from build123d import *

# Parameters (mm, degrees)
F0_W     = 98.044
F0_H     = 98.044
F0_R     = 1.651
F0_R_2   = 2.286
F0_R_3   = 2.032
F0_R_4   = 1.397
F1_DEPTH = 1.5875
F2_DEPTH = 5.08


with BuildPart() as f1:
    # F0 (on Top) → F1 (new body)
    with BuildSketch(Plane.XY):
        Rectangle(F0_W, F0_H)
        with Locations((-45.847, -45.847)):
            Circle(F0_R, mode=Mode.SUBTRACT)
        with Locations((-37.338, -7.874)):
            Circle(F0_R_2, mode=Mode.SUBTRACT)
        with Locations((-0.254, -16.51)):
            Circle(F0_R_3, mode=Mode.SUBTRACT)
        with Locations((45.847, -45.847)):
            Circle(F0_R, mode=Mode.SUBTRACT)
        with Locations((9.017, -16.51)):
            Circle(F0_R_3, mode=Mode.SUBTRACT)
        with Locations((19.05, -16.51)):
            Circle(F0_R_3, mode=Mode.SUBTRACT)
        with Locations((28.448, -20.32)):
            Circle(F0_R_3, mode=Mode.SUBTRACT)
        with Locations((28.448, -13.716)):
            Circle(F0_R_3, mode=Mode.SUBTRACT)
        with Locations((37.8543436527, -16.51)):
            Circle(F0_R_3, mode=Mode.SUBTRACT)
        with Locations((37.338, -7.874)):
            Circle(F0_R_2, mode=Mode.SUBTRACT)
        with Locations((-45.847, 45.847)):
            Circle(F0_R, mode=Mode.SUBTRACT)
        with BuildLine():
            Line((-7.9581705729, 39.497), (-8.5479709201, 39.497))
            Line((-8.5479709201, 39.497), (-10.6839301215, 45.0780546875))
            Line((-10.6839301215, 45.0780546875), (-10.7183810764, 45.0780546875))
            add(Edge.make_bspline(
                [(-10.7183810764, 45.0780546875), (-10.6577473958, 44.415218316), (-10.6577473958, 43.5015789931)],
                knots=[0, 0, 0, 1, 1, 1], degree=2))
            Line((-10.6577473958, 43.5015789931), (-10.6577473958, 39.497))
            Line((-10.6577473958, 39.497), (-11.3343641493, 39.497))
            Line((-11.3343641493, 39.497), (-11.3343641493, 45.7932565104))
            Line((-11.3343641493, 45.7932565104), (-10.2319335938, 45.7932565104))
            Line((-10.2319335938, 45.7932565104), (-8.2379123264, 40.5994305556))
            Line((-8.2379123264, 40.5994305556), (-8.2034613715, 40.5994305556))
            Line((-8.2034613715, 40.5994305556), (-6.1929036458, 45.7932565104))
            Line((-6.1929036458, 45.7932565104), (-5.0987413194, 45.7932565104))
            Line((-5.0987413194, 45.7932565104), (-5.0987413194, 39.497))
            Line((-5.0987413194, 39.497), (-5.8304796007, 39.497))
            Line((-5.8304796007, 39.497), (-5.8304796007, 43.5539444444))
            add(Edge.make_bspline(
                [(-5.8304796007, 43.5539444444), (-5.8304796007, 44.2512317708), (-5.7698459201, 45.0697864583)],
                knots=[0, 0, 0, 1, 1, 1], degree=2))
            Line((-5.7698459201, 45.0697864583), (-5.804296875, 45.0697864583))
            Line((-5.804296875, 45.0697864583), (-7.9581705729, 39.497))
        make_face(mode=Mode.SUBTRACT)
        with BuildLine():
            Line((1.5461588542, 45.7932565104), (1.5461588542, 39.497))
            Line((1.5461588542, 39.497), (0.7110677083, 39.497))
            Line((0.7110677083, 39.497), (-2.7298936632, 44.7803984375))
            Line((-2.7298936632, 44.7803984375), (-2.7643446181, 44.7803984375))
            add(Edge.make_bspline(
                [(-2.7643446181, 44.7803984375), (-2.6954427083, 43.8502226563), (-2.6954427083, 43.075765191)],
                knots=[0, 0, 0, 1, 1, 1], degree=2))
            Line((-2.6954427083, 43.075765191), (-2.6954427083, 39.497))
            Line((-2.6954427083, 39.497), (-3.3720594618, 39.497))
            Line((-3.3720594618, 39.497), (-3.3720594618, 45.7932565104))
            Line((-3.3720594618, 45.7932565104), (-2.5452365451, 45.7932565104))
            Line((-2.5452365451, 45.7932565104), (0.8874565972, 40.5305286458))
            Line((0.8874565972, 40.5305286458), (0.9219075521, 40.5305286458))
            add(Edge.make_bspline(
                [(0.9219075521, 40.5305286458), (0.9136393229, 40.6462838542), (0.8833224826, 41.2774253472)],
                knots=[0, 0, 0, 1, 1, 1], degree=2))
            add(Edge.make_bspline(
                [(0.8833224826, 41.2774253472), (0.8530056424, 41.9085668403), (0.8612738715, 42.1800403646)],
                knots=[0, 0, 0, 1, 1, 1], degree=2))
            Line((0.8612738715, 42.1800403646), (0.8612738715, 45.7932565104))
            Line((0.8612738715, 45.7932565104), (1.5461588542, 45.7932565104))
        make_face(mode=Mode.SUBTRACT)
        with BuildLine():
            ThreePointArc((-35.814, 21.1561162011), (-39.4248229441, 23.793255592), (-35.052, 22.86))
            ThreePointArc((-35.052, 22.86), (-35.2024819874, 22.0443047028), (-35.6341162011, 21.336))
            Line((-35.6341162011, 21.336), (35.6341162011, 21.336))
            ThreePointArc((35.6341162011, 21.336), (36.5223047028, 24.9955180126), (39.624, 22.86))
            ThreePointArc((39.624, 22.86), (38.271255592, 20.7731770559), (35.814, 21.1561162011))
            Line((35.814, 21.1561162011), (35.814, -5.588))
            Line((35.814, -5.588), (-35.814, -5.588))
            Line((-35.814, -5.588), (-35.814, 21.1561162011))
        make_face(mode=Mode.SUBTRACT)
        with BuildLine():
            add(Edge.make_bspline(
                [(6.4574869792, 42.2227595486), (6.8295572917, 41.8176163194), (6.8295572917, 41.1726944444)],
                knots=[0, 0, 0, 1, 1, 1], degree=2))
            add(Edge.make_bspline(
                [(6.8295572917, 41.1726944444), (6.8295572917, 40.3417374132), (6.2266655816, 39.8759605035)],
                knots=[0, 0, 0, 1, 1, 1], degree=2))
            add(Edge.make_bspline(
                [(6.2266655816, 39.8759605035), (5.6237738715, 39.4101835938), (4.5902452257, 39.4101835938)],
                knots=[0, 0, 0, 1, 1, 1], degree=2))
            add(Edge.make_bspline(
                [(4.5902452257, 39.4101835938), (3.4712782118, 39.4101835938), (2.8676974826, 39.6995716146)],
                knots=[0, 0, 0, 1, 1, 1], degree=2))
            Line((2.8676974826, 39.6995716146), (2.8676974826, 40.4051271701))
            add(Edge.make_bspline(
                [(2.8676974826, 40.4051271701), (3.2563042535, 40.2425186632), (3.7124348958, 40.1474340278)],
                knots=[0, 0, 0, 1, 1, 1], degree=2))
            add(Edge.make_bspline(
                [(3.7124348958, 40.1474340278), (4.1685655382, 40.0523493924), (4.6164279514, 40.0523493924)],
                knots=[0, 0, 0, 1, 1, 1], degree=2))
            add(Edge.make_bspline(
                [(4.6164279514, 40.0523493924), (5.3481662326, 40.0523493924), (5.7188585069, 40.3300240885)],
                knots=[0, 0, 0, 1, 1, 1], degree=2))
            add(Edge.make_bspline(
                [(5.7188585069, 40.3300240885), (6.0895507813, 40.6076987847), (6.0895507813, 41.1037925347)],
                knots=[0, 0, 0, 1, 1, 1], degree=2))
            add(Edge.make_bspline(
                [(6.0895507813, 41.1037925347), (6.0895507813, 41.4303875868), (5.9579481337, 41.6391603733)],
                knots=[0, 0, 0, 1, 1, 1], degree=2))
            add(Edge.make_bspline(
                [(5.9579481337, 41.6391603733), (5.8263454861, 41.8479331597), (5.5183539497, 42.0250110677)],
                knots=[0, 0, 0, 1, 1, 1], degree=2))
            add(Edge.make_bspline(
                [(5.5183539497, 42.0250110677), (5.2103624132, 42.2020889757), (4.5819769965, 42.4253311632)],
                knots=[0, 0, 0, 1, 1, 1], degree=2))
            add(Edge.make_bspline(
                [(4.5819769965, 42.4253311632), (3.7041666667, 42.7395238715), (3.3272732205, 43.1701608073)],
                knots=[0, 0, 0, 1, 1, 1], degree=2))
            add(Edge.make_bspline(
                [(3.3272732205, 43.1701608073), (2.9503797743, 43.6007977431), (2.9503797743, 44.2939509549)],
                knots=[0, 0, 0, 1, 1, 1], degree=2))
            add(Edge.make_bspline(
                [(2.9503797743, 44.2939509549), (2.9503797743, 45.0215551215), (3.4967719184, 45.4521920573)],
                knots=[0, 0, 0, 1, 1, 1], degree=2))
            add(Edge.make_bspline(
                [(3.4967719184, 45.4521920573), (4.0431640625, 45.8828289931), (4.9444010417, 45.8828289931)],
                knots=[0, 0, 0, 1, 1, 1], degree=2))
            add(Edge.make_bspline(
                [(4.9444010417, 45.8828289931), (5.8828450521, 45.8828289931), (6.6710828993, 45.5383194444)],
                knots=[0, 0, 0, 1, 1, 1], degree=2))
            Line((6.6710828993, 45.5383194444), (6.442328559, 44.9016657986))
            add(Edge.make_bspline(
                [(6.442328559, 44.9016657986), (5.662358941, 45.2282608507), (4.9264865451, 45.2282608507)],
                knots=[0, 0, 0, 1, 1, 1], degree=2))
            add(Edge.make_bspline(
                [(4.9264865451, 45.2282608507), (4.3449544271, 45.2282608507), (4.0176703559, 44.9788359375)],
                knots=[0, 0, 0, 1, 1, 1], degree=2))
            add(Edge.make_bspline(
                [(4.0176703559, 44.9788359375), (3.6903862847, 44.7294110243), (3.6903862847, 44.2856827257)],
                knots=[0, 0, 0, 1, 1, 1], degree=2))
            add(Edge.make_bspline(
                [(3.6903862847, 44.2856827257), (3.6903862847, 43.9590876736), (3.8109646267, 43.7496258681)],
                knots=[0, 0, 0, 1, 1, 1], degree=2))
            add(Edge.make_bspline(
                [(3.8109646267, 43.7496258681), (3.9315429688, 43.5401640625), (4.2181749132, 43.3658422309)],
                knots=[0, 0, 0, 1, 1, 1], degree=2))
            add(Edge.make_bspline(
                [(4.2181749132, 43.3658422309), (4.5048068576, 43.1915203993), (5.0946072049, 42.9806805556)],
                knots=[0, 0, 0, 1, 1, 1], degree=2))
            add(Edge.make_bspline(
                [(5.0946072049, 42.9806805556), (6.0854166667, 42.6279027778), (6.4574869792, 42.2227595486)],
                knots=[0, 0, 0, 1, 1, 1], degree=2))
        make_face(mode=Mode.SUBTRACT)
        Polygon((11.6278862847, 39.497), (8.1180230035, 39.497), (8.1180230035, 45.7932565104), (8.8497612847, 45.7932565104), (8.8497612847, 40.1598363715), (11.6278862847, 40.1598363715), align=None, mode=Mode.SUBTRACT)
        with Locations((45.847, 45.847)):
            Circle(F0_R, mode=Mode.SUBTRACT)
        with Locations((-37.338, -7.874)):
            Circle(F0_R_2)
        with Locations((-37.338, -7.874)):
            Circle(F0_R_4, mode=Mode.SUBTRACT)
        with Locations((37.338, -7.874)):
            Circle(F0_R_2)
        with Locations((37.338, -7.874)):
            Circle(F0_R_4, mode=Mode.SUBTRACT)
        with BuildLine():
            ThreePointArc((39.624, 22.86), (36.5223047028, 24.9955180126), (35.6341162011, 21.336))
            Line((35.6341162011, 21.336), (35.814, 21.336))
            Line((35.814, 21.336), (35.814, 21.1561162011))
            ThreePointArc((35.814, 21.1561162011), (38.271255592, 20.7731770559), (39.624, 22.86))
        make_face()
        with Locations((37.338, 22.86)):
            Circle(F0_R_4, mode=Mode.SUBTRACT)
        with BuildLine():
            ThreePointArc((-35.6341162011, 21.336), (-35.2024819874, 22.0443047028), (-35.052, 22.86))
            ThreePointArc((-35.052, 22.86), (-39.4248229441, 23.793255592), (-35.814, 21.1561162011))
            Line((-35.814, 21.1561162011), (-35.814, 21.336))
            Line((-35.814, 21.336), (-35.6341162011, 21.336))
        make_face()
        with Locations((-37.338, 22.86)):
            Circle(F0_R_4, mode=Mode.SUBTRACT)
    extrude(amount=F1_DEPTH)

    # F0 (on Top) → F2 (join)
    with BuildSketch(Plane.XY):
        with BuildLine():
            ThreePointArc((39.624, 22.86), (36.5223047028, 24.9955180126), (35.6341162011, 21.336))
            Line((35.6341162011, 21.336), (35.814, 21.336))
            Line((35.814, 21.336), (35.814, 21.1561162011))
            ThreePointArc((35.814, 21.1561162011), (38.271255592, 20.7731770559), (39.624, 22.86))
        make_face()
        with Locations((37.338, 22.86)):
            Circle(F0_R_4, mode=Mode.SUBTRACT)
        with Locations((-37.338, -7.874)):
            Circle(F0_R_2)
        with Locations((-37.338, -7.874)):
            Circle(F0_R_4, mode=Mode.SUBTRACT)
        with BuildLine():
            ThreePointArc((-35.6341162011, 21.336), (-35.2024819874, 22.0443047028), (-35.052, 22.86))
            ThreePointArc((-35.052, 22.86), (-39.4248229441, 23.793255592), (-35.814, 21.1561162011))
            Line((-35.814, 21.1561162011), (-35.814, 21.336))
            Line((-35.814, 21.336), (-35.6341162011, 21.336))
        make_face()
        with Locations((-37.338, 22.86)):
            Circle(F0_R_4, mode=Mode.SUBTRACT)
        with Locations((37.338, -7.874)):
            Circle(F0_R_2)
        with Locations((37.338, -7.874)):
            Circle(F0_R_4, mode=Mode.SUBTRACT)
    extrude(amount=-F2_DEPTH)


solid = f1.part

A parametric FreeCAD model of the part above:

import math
import FreeCAD as App
import Part
import Sketcher

V = App.Vector
Q = App.Units.Quantity


def add_polygon(sketch, points):
    """Adds a closed chain of lines whose ends are joined by coincident constraints."""
    first, n = sketch.GeometryCount, len(points)
    for a, b in zip(points, points[1:] + points[:1]):
        sketch.addGeometry(Part.LineSegment(App.Vector(*a, 0), App.Vector(*b, 0)), False)
    for i in range(n):
        sketch.addConstraint(Sketcher.Constraint("Coincident", first + i, 2, first + (i + 1) % n, 1))

doc = App.newDocument("Part")
params = doc.addObject("Spreadsheet::Sheet", "Params")
for row, (alias, value) in enumerate([
    ("sketch1_diameter", "0.13 in"),
    ("sketch1_diameter2", "0.11 in"),
    ("sketch1_diameter3", "0.16 in"),
    ("sketch1_width", "3.86 in"),
    ("sketch1_width2", "2.82 in"),
    ("pad1_length", "0.0625 in"),
    ("sketch2_diameter", "0.11 in"),
    ("sketch2_diameter2", "0.18 in"),
    ("pad2_length", "0.2 in"),
], start=1):
    params.set(f"A{row}", alias)
    params.set(f"B{row}", "=" + value)
    params.setAlias(f"B{row}", alias)

body = doc.addObject("PartDesign::Body", "Body")

# Sketch on XY plane
sketch1 = doc.addObject("Sketcher::SketchObject", "Sketch")
body.addObject(sketch1)
sketch1.AttachmentSupport = (doc.XY_Plane, [""])
sketch1.MapMode = "FlatFace"
add_polygon(sketch1, [(-49.022, 49.022), (-49.022, -49.022), (49.022, -49.022), (49.022, 49.022)])  # lines 0-3
sketch1.addGeometry(Part.Circle(V(-45.847, -45.847, 0), V(0, 0, 1), 1.651), False)  # 4
sketch1.addGeometry(Part.Circle(V(-37.338, -7.874, 0), V(0, 0, 1), 1.397), False)  # 5
sketch1.addGeometry(Part.Circle(V(-0.254, -16.51, 0), V(0, 0, 1), 2.032), False)  # 6
sketch1.addGeometry(Part.Circle(V(45.847, -45.847, 0), V(0, 0, 1), 1.651), False)  # 7
sketch1.addGeometry(Part.Circle(V(9.017, -16.51, 0), V(0, 0, 1), 2.032), False)  # 8
sketch1.addGeometry(Part.Circle(V(19.05, -16.51, 0), V(0, 0, 1), 2.032), False)  # 9
sketch1.addGeometry(Part.Circle(V(28.448, -20.32, 0), V(0, 0, 1), 2.032), False)  # 10
sketch1.addGeometry(Part.Circle(V(28.448, -13.716, 0), V(0, 0, 1), 2.032), False)  # 11
sketch1.addGeometry(Part.Circle(V(37.854344, -16.51, 0), V(0, 0, 1), 2.032), False)  # 12
sketch1.addGeometry(Part.Circle(V(37.338, -7.874, 0), V(0, 0, 1), 1.397), False)  # 13
sketch1.addGeometry(Part.Circle(V(-37.338, 22.86, 0), V(0, 0, 1), 1.397), False)  # 14
sketch1.addGeometry(Part.Circle(V(-45.847, 45.847, 0), V(0, 0, 1), 1.651), False)  # 15
sketch1.addGeometry(Part.LineSegment(V(-5.804297, 45.069786, 0), V(-7.958171, 39.497, 0)), False)  # 16
sketch1.addGeometry(Part.LineSegment(V(-7.958171, 39.497, 0), V(-8.547971, 39.497, 0)), False)  # 17
sketch1.addGeometry(Part.LineSegment(V(-8.547971, 39.497, 0), V(-10.68393, 45.078055, 0)), False)  # 18
sketch1.addGeometry(Part.LineSegment(V(-10.68393, 45.078055, 0), V(-10.718381, 45.078055, 0)), False)  # 19
sketch1.addGeometry(Part.BSplineCurve([V(-10.718381, 45.078055, 0), V(-10.657747, 44.415218, 0), V(-10.657747, 43.501579, 0)], [3, 3], [0, 1], False, 2, [1, 1, 1], False), False)  # 20
sketch1.addGeometry(Part.LineSegment(V(-10.657747, 43.501579, 0), V(-10.657747, 39.497, 0)), False)  # 21
sketch1.addGeometry(Part.LineSegment(V(-10.657747, 39.497, 0), V(-11.334364, 39.497, 0)), False)  # 22
sketch1.addGeometry(Part.LineSegment(V(-11.334364, 39.497, 0), V(-11.334364, 45.793257, 0)), False)  # 23
sketch1.addGeometry(Part.LineSegment(V(-11.334364, 45.793257, 0), V(-10.231934, 45.793257, 0)), False)  # 24
sketch1.addGeometry(Part.LineSegment(V(-10.231934, 45.793257, 0), V(-8.237912, 40.599431, 0)), False)  # 25
sketch1.addGeometry(Part.LineSegment(V(-8.237912, 40.599431, 0), V(-8.203461, 40.599431, 0)), False)  # 26
sketch1.addGeometry(Part.LineSegment(V(-8.203461, 40.599431, 0), V(-6.192904, 45.793257, 0)), False)  # 27
sketch1.addGeometry(Part.LineSegment(V(-6.192904, 45.793257, 0), V(-5.098741, 45.793257, 0)), False)  # 28
sketch1.addGeometry(Part.LineSegment(V(-5.098741, 45.793257, 0), V(-5.098741, 39.497, 0)), False)  # 29
sketch1.addGeometry(Part.LineSegment(V(-5.098741, 39.497, 0), V(-5.83048, 39.497, 0)), False)  # 30
sketch1.addGeometry(Part.LineSegment(V(-5.83048, 39.497, 0), V(-5.83048, 43.553944, 0)), False)  # 31
sketch1.addGeometry(Part.BSplineCurve([V(-5.83048, 43.553944, 0), V(-5.83048, 44.251232, 0), V(-5.769846, 45.069786, 0)], [3, 3], [0, 1], False, 2, [1, 1, 1], False), False)  # 32
sketch1.addGeometry(Part.LineSegment(V(-5.769846, 45.069786, 0), V(-5.804297, 45.069786, 0)), False)  # 33
sketch1.addGeometry(Part.LineSegment(V(0.861274, 45.793257, 0), V(1.546159, 45.793257, 0)), False)  # 34
sketch1.addGeometry(Part.LineSegment(V(1.546159, 45.793257, 0), V(1.546159, 39.497, 0)), False)  # 35
sketch1.addGeometry(Part.LineSegment(V(1.546159, 39.497, 0), V(0.711068, 39.497, 0)), False)  # 36
sketch1.addGeometry(Part.LineSegment(V(0.711068, 39.497, 0), V(-2.729894, 44.780398, 0)), False)  # 37
sketch1.addGeometry(Part.LineSegment(V(-2.729894, 44.780398, 0), V(-2.764345, 44.780398, 0)), False)  # 38
sketch1.addGeometry(Part.BSplineCurve([V(-2.764345, 44.780398, 0), V(-2.695443, 43.850223, 0), V(-2.695443, 43.075765, 0)], [3, 3], [0, 1], False, 2, [1, 1, 1], False), False)  # 39
sketch1.addGeometry(Part.LineSegment(V(-2.695443, 43.075765, 0), V(-2.695443, 39.497, 0)), False)  # 40
sketch1.addGeometry(Part.LineSegment(V(-2.695443, 39.497, 0), V(-3.372059, 39.497, 0)), False)  # 41
sketch1.addGeometry(Part.LineSegment(V(-3.372059, 39.497, 0), V(-3.372059, 45.793257, 0)), False)  # 42
sketch1.addGeometry(Part.LineSegment(V(-3.372059, 45.793257, 0), V(-2.545237, 45.793257, 0)), False)  # 43
sketch1.addGeometry(Part.LineSegment(V(-2.545237, 45.793257, 0), V(0.887457, 40.530529, 0)), False)  # 44
sketch1.addGeometry(Part.LineSegment(V(0.887457, 40.530529, 0), V(0.921908, 40.530529, 0)), False)  # 45
sketch1.addGeometry(Part.BSplineCurve([V(0.921908, 40.530529, 0), V(0.913639, 40.646284, 0), V(0.883322, 41.277425, 0)], [3, 3], [0, 1], False, 2, [1, 1, 1], False), False)  # 46
sketch1.addGeometry(Part.BSplineCurve([V(0.883322, 41.277425, 0), V(0.853006, 41.908567, 0), V(0.861274, 42.18004, 0)], [3, 3], [0, 1], False, 2, [1, 1, 1], False), False)  # 47
sketch1.addGeometry(Part.LineSegment(V(0.861274, 42.18004, 0), V(0.861274, 45.793257, 0)), False)  # 48
add_polygon(sketch1, [(-35.814, -5.588), (-35.814, 21.336), (35.814, 21.336), (35.814, -5.588)])  # lines 49-52
sketch1.addGeometry(Part.Circle(V(37.338, 22.86, 0), V(0, 0, 1), 1.397), False)  # 53
sketch1.addGeometry(Part.BSplineCurve([V(5.094607, 42.980681, 0), V(6.085417, 42.627903, 0), V(6.829557, 41.817616, 0), V(6.829557, 40.341737, 0), V(5.623774, 39.410184, 0), V(3.471278, 39.410184, 0), V(2.867697, 39.699572, 0)], [3, 1, 1, 1, 1, 3], [0, 1, 2, 3.288461538, 4.576923077, 5.971897436], False, 2, [1, 1, 1, 1, 1, 1, 1], False), False)  # 54
sketch1.addGeometry(Part.LineSegment(V(2.867697, 39.699572, 0), V(2.867697, 40.405127, 0)), False)  # 55
sketch1.addGeometry(Part.BSplineCurve([V(2.867697, 40.405127, 0), V(3.256304, 40.242519, 0), V(3.712435, 40.147434, 0)], [3, 3], [0, 1], False, 2, [1, 1, 1], False), False)  # 56
sketch1.addGeometry(Part.BSplineCurve([V(3.712435, 40.147434, 0), V(4.168566, 40.052349, 0), V(5.348166, 40.052349, 0), V(5.718859, 40.330024, 0)], [3, 1, 3], [0, 1, 2.633846154], False, 2, [1, 1, 1, 1], False), False)  # 57
sketch1.addGeometry(Part.BSplineCurve([V(5.718859, 40.330024, 0), V(6.089551, 40.607699, 0), V(6.089551, 41.430388, 0), V(5.957948, 41.63916, 0)], [3, 1, 3], [0, 1, 1.658333333], False, 2, [1, 1, 1, 1], False), False)  # 58
sketch1.addGeometry(Part.BSplineCurve([V(5.957948, 41.63916, 0), V(5.826345, 41.847933, 0), V(5.518354, 42.025011, 0)], [3, 3], [0, 1], False, 2, [1, 1, 1], False), False)  # 59
sketch1.addGeometry(Part.BSplineCurve([V(5.518354, 42.025011, 0), V(5.210362, 42.202089, 0), V(4.581977, 42.425331, 0)], [3, 3], [0, 1], False, 2, [1, 1, 1], False), False)  # 60
sketch1.addGeometry(Part.BSplineCurve([V(4.581977, 42.425331, 0), V(3.704167, 42.739524, 0), V(2.95038, 43.600798, 0), V(2.95038, 45.021555, 0), V(4.043164, 45.882829, 0), V(5.882845, 45.882829, 0), V(6.671083, 45.538319, 0)], [3, 1, 1, 1, 1, 3], [0, 1, 2, 3.049701789, 4.099403578, 5.19244168], False, 2, [1, 1, 1, 1, 1, 1, 1], False), False)  # 61
sketch1.addGeometry(Part.LineSegment(V(6.671083, 45.538319, 0), V(6.442329, 44.901666, 0)), False)  # 62
sketch1.addGeometry(Part.BSplineCurve([V(6.442329, 44.901666, 0), V(5.662359, 45.228261, 0), V(4.344954, 45.228261, 0), V(3.690386, 44.729411, 0), V(3.690386, 43.959088, 0), V(3.810965, 43.749626, 0)], [3, 1, 1, 1, 3], [0, 1, 1.790262172, 2.580524344, 3.162176937], False, 2, [1, 1, 1, 1, 1, 1], False), False)  # 63
sketch1.addGeometry(Part.BSplineCurve([V(3.810965, 43.749626, 0), V(3.931543, 43.540164, 0), V(4.504807, 43.19152, 0), V(5.094607, 42.980681, 0)], [3, 1, 3], [0, 1, 2], False, 2, [1, 1, 1, 1], False), False)  # 64
add_polygon(sketch1, [(11.627886, 40.159836), (11.627886, 39.497), (8.118023, 39.497), (8.118023, 45.793257), (8.849761, 45.793257), (8.849761, 40.159836)])  # lines 65-70
sketch1.addGeometry(Part.Circle(V(45.847, 45.847, 0), V(0, 0, 1), 1.651), False)  # 71
sketch1.addConstraint(Sketcher.Constraint("Block", 20))
sketch1.addConstraint(Sketcher.Constraint("Block", 32))
sketch1.addConstraint(Sketcher.Constraint("Block", 39))
sketch1.addConstraint(Sketcher.Constraint("Block", 46))
sketch1.addConstraint(Sketcher.Constraint("Block", 47))
sketch1.addConstraint(Sketcher.Constraint("Block", 54))
sketch1.addConstraint(Sketcher.Constraint("Block", 56))
sketch1.addConstraint(Sketcher.Constraint("Block", 57))
sketch1.addConstraint(Sketcher.Constraint("Block", 58))
sketch1.addConstraint(Sketcher.Constraint("Block", 59))
sketch1.addConstraint(Sketcher.Constraint("Block", 60))
sketch1.addConstraint(Sketcher.Constraint("Block", 61))
sketch1.addConstraint(Sketcher.Constraint("Block", 63))
sketch1.addConstraint(Sketcher.Constraint("Block", 64))
sketch1.addConstraint(Sketcher.Constraint("Coincident", 16, 2, 17, 1))
sketch1.addConstraint(Sketcher.Constraint("Coincident", 17, 2, 18, 1))
sketch1.addConstraint(Sketcher.Constraint("Coincident", 18, 2, 19, 1))
sketch1.addConstraint(Sketcher.Constraint("Coincident", 19, 2, 20, 1))
sketch1.addConstraint(Sketcher.Constraint("Coincident", 20, 2, 21, 1))
sketch1.addConstraint(Sketcher.Constraint("Coincident", 21, 2, 22, 1))
sketch1.addConstraint(Sketcher.Constraint("Coincident", 22, 2, 23, 1))
sketch1.addConstraint(Sketcher.Constraint("Coincident", 23, 2, 24, 1))
sketch1.addConstraint(Sketcher.Constraint("Coincident", 24, 2, 25, 1))
sketch1.addConstraint(Sketcher.Constraint("Coincident", 25, 2, 26, 1))
sketch1.addConstraint(Sketcher.Constraint("Coincident", 26, 2, 27, 1))
sketch1.addConstraint(Sketcher.Constraint("Coincident", 27, 2, 28, 1))
sketch1.addConstraint(Sketcher.Constraint("Coincident", 28, 2, 29, 1))
sketch1.addConstraint(Sketcher.Constraint("Coincident", 29, 2, 30, 1))
sketch1.addConstraint(Sketcher.Constraint("Coincident", 30, 2, 31, 1))
sketch1.addConstraint(Sketcher.Constraint("Coincident", 31, 2, 32, 1))
sketch1.addConstraint(Sketcher.Constraint("Coincident", 32, 2, 33, 1))
sketch1.addConstraint(Sketcher.Constraint("Coincident", 33, 2, 16, 1))
sketch1.addConstraint(Sketcher.Constraint("Coincident", 34, 2, 35, 1))
sketch1.addConstraint(Sketcher.Constraint("Coincident", 35, 2, 36, 1))
sketch1.addConstraint(Sketcher.Constraint("Coincident", 36, 2, 37, 1))
sketch1.addConstraint(Sketcher.Constraint("Coincident", 37, 2, 38, 1))
sketch1.addConstraint(Sketcher.Constraint("Coincident", 38, 2, 39, 1))
sketch1.addConstraint(Sketcher.Constraint("Coincident", 39, 2, 40, 1))
sketch1.addConstraint(Sketcher.Constraint("Coincident", 40, 2, 41, 1))
sketch1.addConstraint(Sketcher.Constraint("Coincident", 41, 2, 42, 1))
sketch1.addConstraint(Sketcher.Constraint("Coincident", 42, 2, 43, 1))
sketch1.addConstraint(Sketcher.Constraint("Coincident", 43, 2, 44, 1))
sketch1.addConstraint(Sketcher.Constraint("Coincident", 44, 2, 45, 1))
sketch1.addConstraint(Sketcher.Constraint("Coincident", 45, 2, 46, 1))
sketch1.addConstraint(Sketcher.Constraint("Coincident", 47, 2, 48, 1))
sketch1.addConstraint(Sketcher.Constraint("Coincident", 48, 2, 34, 1))
sketch1.addConstraint(Sketcher.Constraint("Coincident", 54, 2, 55, 1))
sketch1.addConstraint(Sketcher.Constraint("Coincident", 55, 2, 56, 1))
sketch1.addConstraint(Sketcher.Constraint("Coincident", 61, 2, 62, 1))
sketch1.addConstraint(Sketcher.Constraint("Coincident", 62, 2, 63, 1))
sketch1.addConstraint(Sketcher.Constraint("Vertical", 0))
sketch1.addConstraint(Sketcher.Constraint("Horizontal", 1))
sketch1.addConstraint(Sketcher.Constraint("Vertical", 2))
sketch1.addConstraint(Sketcher.Constraint("Horizontal", 3))
sketch1.addConstraint(Sketcher.Constraint("Horizontal", 17))
sketch1.addConstraint(Sketcher.Constraint("Horizontal", 19))
sketch1.addConstraint(Sketcher.Constraint("Vertical", 21))
sketch1.addConstraint(Sketcher.Constraint("Horizontal", 22))
sketch1.addConstraint(Sketcher.Constraint("Vertical", 23))
sketch1.addConstraint(Sketcher.Constraint("Horizontal", 24))
sketch1.addConstraint(Sketcher.Constraint("Horizontal", 26))
sketch1.addConstraint(Sketcher.Constraint("Horizontal", 28))
sketch1.addConstraint(Sketcher.Constraint("Vertical", 29))
sketch1.addConstraint(Sketcher.Constraint("Horizontal", 30))
sketch1.addConstraint(Sketcher.Constraint("Vertical", 31))
sketch1.addConstraint(Sketcher.Constraint("Horizontal", 33))
sketch1.addConstraint(Sketcher.Constraint("Horizontal", 34))
sketch1.addConstraint(Sketcher.Constraint("Vertical", 35))
sketch1.addConstraint(Sketcher.Constraint("Horizontal", 36))
sketch1.addConstraint(Sketcher.Constraint("Horizontal", 38))
sketch1.addConstraint(Sketcher.Constraint("Vertical", 40))
sketch1.addConstraint(Sketcher.Constraint("Horizontal", 41))
sketch1.addConstraint(Sketcher.Constraint("Vertical", 42))
sketch1.addConstraint(Sketcher.Constraint("Horizontal", 43))
sketch1.addConstraint(Sketcher.Constraint("Horizontal", 45))
sketch1.addConstraint(Sketcher.Constraint("Vertical", 48))
sketch1.addConstraint(Sketcher.Constraint("Vertical", 49))
sketch1.addConstraint(Sketcher.Constraint("Horizontal", 50))
sketch1.addConstraint(Sketcher.Constraint("Vertical", 51))
sketch1.addConstraint(Sketcher.Constraint("Horizontal", 52))
sketch1.addConstraint(Sketcher.Constraint("Vertical", 65))
sketch1.addConstraint(Sketcher.Constraint("Horizontal", 66))
sketch1.addConstraint(Sketcher.Constraint("Vertical", 67))
sketch1.addConstraint(Sketcher.Constraint("Horizontal", 68))
sketch1.addConstraint(Sketcher.Constraint("Vertical", 69))
sketch1.addConstraint(Sketcher.Constraint("Horizontal", 70))
sketch1.addConstraint(Sketcher.Constraint("Equal", 4, 7))
sketch1.addConstraint(Sketcher.Constraint("Equal", 6, 8))
sketch1.addConstraint(Sketcher.Constraint("Equal", 8, 9))
sketch1.addConstraint(Sketcher.Constraint("Equal", 9, 10))
sketch1.addConstraint(Sketcher.Constraint("Equal", 10, 11))
sketch1.addConstraint(Sketcher.Constraint("Equal", 11, 12))
sketch1.addConstraint(Sketcher.Constraint("Equal", 5, 13))
sketch1.addConstraint(Sketcher.Constraint("Equal", 13, 14))
sketch1.addConstraint(Sketcher.Constraint("Equal", 7, 15))
sketch1.addConstraint(Sketcher.Constraint("Equal", 14, 53))
sketch1.addConstraint(Sketcher.Constraint("Equal", 15, 71))
sketch1.addConstraint(Sketcher.Constraint("Symmetric", 7, 3, 15, 3, -1, 1))
sketch1.addConstraint(Sketcher.Constraint("Symmetric", 4, 3, 71, 3, -1, 1))
sketch1.addConstraint(Sketcher.Constraint("Symmetric", 0, 2, 2, 2, -1, 1))
sketch1.addConstraint(Sketcher.Constraint("Symmetric", 4, 3, 7, 3, -2))
sketch1.addConstraint(Sketcher.Constraint("Symmetric", 5, 3, 13, 3, -2))
sketch1.addConstraint(Sketcher.Constraint("Symmetric", 14, 3, 53, 3, -2))
sketch1.addConstraint(Sketcher.Constraint("Horizontal", 6, 3, 8, 3))
sketch1.addConstraint(Sketcher.Constraint("Horizontal", 8, 3, 9, 3))
sketch1.addConstraint(Sketcher.Constraint("Horizontal", 9, 3, 12, 3))
sketch1.addConstraint(Sketcher.Constraint("Horizontal", 17, 2, 21, 2))
sketch1.addConstraint(Sketcher.Constraint("Horizontal", 24, 2, 27, 2))
sketch1.addConstraint(Sketcher.Constraint("Horizontal", 22, 2, 29, 2))
sketch1.addConstraint(Sketcher.Constraint("Horizontal", 28, 2, 34, 2))
sketch1.addConstraint(Sketcher.Constraint("Horizontal", 30, 2, 35, 2))
sketch1.addConstraint(Sketcher.Constraint("Horizontal", 36, 2, 40, 2))
sketch1.addConstraint(Sketcher.Constraint("Horizontal", 34, 2, 42, 2))
sketch1.addConstraint(Sketcher.Constraint("Horizontal", 41, 2, 65, 2))
sketch1.addConstraint(Sketcher.Constraint("Horizontal", 48, 2, 67, 2))
sketch1.addConstraint(Sketcher.Constraint("Vertical", 10, 3, 11, 3))
sketch1.addConstraint(Sketcher.Constraint("Vertical", 5, 3, 14, 3))
sketch1.addConstraint(Sketcher.Constraint("Equal", 19, 26))
sketch1.addConstraint(Sketcher.Constraint("Equal", 26, 33))
sketch1.addConstraint(Sketcher.Constraint("Equal", 33, 38))
sketch1.addConstraint(Sketcher.Constraint("Equal", 22, 41))
sketch1.addConstraint(Sketcher.Constraint("Equal", 38, 45))
sketch1.addConstraint(Sketcher.Constraint("Equal", 30, 68))
sketch1.addConstraint(Sketcher.Constraint("Equal", 3, 0))
sketch1.addConstraint(Sketcher.Constraint("Diameter", 4, Q("0.13 in")))
sketch1.addConstraint(Sketcher.Constraint("Diameter", 5, Q("0.11 in")))
sketch1.addConstraint(Sketcher.Constraint("Diameter", 6, Q("0.16 in")))
sketch1.addConstraint(Sketcher.Constraint("DistanceX", 1, 1, 1, 2, Q("3.86 in")))
sketch1.addConstraint(Sketcher.Constraint("DistanceX", 50, 1, 50, 2, Q("2.82 in")))
sketch1.addConstraint(Sketcher.Constraint("DistanceY", 49, 1, 49, 2, Q("1.06 in")))
sketch1.addConstraint(Sketcher.Constraint("DistanceY", 10, 3, -1, 1, Q("0.8 in")))
sketch1.addConstraint(Sketcher.Constraint("DistanceY", -1, 1, 14, 3, Q("0.9 in")))
sketch1.addConstraint(Sketcher.Constraint("DistanceX", 52, 2, 6, 3, Q("1.4 in")))
sketch1.addConstraint(Sketcher.Constraint("DistanceX", 70, 1, 70, 2, Q("0.109375 in")))
sketch1.addConstraint(Sketcher.Constraint("DistanceX", 5, 3, -1, 1, Q("1.47 in")))
sketch1.addConstraint(Sketcher.Constraint("DistanceY", 5, 3, -1, 1, Q("0.31 in")))
sketch1.addConstraint(Sketcher.Constraint("DistanceX", 6, 3, -1, 1, Q("0.01 in")))
sketch1.addConstraint(Sketcher.Constraint("DistanceY", 6, 3, -1, 1, Q("0.65 in")))
sketch1.addConstraint(Sketcher.Constraint("DistanceX", -1, 1, 9, 3, Q("0.75 in")))
sketch1.addConstraint(Sketcher.Constraint("DistanceX", -1, 1, 10, 3, Q("1.12 in")))
sketch1.addConstraint(Sketcher.Constraint("DistanceY", 11, 3, -1, 1, Q("0.54 in")))
sketch1.addConstraint(Sketcher.Constraint("DistanceY", -1, 1, 49, 2, Q("0.84 in")))
sketch1.addConstraint(Sketcher.Constraint("DistanceX", 4, 3, 7, 3, Q("3.61 in")))
sketch1.addConstraint(Sketcher.Constraint("DistanceX", 8, 3, 7, 3, Q("1.45 in")))
sketch1.addConstraint(Sketcher.Constraint("DistanceY", 16, 2, 15, 3, Q("0.25 in")))
sketch1.addConstraint(Sketcher.Constraint("DistanceY", 4, 3, -1, 1, Q("1.805 in")))
sketch1.addConstraint(Sketcher.Constraint("DistanceX", 17, 2, 17, 1, 0.5898))
sketch1.addConstraint(Sketcher.Constraint("DistanceX", 18, 2, 25, 2, Q("0.0962999 in")))
sketch1.addConstraint(Sketcher.Constraint("DistanceX", 19, 2, 19, 1, 0.034451))
sketch1.addConstraint(Sketcher.Constraint("DistanceX", 24, 1, 24, 2, 1.102431))
sketch1.addConstraint(Sketcher.Constraint("DistanceX", 30, 2, 30, 1, 0.731738))
sketch1.addConstraint(Sketcher.Constraint("DistanceX", 36, 2, 36, 1, 0.835091))
sketch1.addConstraint(Sketcher.Constraint("DistanceY", 69, 2, 69, 1, 5.63342))
sketch1.addConstraint(Sketcher.Constraint("DistanceY", 19, 2, 23, 2, 0.715202))
sketch1.addConstraint(Sketcher.Constraint("DistanceX", 28, 2, 34, 2, 6.6449))
sketch1.addConstraint(Sketcher.Constraint("Distance", 16, 5.974539))
sketch1.addConstraint(Sketcher.Constraint("DistanceX", 22, 2, 22, 1, 0.676617))
sketch1.addConstraint(Sketcher.Constraint("DistanceX", 28, 1, 28, 2, 1.094162))
sketch1.addConstraint(Sketcher.Constraint("DistanceX", 43, 1, 43, 2, 0.826823))
sketch1.addConstraint(Sketcher.Constraint("DistanceY", -1, 1, 25, 2, 40.599431))
sketch1.addConstraint(Sketcher.Constraint("DistanceX", -1, 1, 68, 2, 8.849761))
sketch1.addConstraint(Sketcher.Constraint("DistanceX", -1, 1, 12, 3, 37.854344))
sketch1.setExpression("Constraints[138]", "Params.sketch1_diameter")
sketch1.setExpression("Constraints[139]", "Params.sketch1_diameter2")
sketch1.setExpression("Constraints[140]", "Params.sketch1_diameter3")
sketch1.setExpression("Constraints[141]", "Params.sketch1_width")
sketch1.setExpression("Constraints[142]", "Params.sketch1_width2")
pad1 = doc.addObject("PartDesign::Pad", "Pad")
body.addObject(pad1)
pad1.Profile = sketch1
pad1.setExpression("Length", "Params.pad1_length")

# Sketch on XY plane
sketch2 = doc.addObject("Sketcher::SketchObject", "Sketch001")
body.addObject(sketch2)
sketch2.AttachmentSupport = (doc.XY_Plane, [""])
sketch2.MapMode = "FlatFace"
sketch2.addGeometry(Part.ArcOfCircle(Part.Circle(V(37.34, 22.86, 0), V(0, 0, 1), 2.29), math.radians(0), math.radians(222)), False)
sketch2.addGeometry(Part.LineSegment(V(35.63, 21.34, 0), V(35.81, 21.34, 0)), False)
sketch2.addGeometry(Part.LineSegment(V(35.81, 21.34, 0), V(35.81, 21.16, 0)), False)
sketch2.addGeometry(Part.ArcOfCircle(Part.Circle(V(37.34, 22.86, 0), V(0, 0, 1), 2.29), math.radians(-132), math.radians(0)), False)
sketch2.addGeometry(Part.Circle(V(37.34, 22.86, 0), V(0, 0, 1), 1.4), False)
sketch2.addGeometry(Part.Circle(V(-37.34, -7.87, 0), V(0, 0, 1), 2.29), False)
sketch2.addGeometry(Part.Circle(V(-37.34, -7.87, 0), V(0, 0, 1), 1.4), False)
sketch2.addGeometry(Part.ArcOfCircle(Part.Circle(V(-37.34, 22.86, 0), V(0, 0, 1), 2.29), math.radians(-42), math.radians(0)), False)
sketch2.addGeometry(Part.ArcOfCircle(Part.Circle(V(-37.34, 22.86, 0), V(0, 0, 1), 2.29), math.radians(0), math.radians(312)), False)
sketch2.addGeometry(Part.LineSegment(V(-35.81, 21.16, 0), V(-35.81, 21.34, 0)), False)
sketch2.addGeometry(Part.LineSegment(V(-35.81, 21.34, 0), V(-35.63, 21.34, 0)), False)
sketch2.addGeometry(Part.Circle(V(-37.34, 22.86, 0), V(0, 0, 1), 1.4), False)
sketch2.addGeometry(Part.Circle(V(37.34, -7.87, 0), V(0, 0, 1), 2.29), False)
sketch2.addGeometry(Part.Circle(V(37.34, -7.87, 0), V(0, 0, 1), 1.4), False)
sketch2.addConstraint(Sketcher.Constraint("Coincident", 0, 2, 1, 1))
sketch2.addConstraint(Sketcher.Constraint("Coincident", 1, 2, 2, 1))
sketch2.addConstraint(Sketcher.Constraint("Coincident", 2, 2, 3, 1))
sketch2.addConstraint(Sketcher.Constraint("Tangent", 3, 2, 0, 1))
sketch2.addConstraint(Sketcher.Constraint("Tangent", 7, 2, 8, 1))
sketch2.addConstraint(Sketcher.Constraint("Coincident", 8, 2, 9, 1))
sketch2.addConstraint(Sketcher.Constraint("Coincident", 9, 2, 10, 1))
sketch2.addConstraint(Sketcher.Constraint("Coincident", 10, 2, 7, 1))
sketch2.addConstraint(Sketcher.Constraint("Horizontal", 1))
sketch2.addConstraint(Sketcher.Constraint("Vertical", 2))
sketch2.addConstraint(Sketcher.Constraint("Vertical", 9))
sketch2.addConstraint(Sketcher.Constraint("Horizontal", 10))
sketch2.addConstraint(Sketcher.Constraint("Coincident", 4, 3, 0, 3))
sketch2.addConstraint(Sketcher.Constraint("Coincident", 6, 3, 5, 3))
sketch2.addConstraint(Sketcher.Constraint("Coincident", 11, 3, 7, 3))
sketch2.addConstraint(Sketcher.Constraint("Coincident", 13, 3, 12, 3))
sketch2.addConstraint(Sketcher.Constraint("Equal", 0, 3))
sketch2.addConstraint(Sketcher.Constraint("Equal", 3, 5))
sketch2.addConstraint(Sketcher.Constraint("Equal", 4, 6))
sketch2.addConstraint(Sketcher.Constraint("Equal", 5, 7))
sketch2.addConstraint(Sketcher.Constraint("Equal", 7, 8))
sketch2.addConstraint(Sketcher.Constraint("Equal", 6, 11))
sketch2.addConstraint(Sketcher.Constraint("Equal", 8, 12))
sketch2.addConstraint(Sketcher.Constraint("Equal", 11, 13))
sketch2.addConstraint(Sketcher.Constraint("Symmetric", 0, 3, 7, 3, -2))
sketch2.addConstraint(Sketcher.Constraint("Symmetric", 5, 3, 12, 3, -2))
sketch2.addConstraint(Sketcher.Constraint("Symmetric", 1, 2, 9, 2, -2))
sketch2.addConstraint(Sketcher.Constraint("Horizontal", 11, 3, 3, 2))
sketch2.addConstraint(Sketcher.Constraint("Horizontal", 3, 2, 7, 2))
sketch2.addConstraint(Sketcher.Constraint("Vertical", 6, 3, 7, 3))
sketch2.addConstraint(Sketcher.Constraint("Equal", 10, 2))
sketch2.addConstraint(Sketcher.Constraint("Diameter", 4, Q("0.11 in")))
sketch2.addConstraint(Sketcher.Constraint("Diameter", 5, Q("0.18 in")))
sketch2.addConstraint(Sketcher.Constraint("DistanceY", -1, 1, 0, 3, Q("0.9 in")))
sketch2.addConstraint(Sketcher.Constraint("DistanceX", -1, 1, 0, 3, Q("1.47 in")))
sketch2.addConstraint(Sketcher.Constraint("DistanceY", 5, 3, -1, 1, Q("0.31 in")))
sketch2.addConstraint(Sketcher.Constraint("DistanceY", -1, 1, 0, 2, Q("0.84 in")))
sketch2.setExpression("Constraints[31]", "Params.sketch2_diameter")
sketch2.setExpression("Constraints[32]", "Params.sketch2_diameter2")
pad2 = doc.addObject("PartDesign::Pad", "Pad001")
body.addObject(pad2)
pad2.Profile = sketch2
pad2.setExpression("Length", "Params.pad2_length")
pad2.Reversed = True

doc.recompute()
